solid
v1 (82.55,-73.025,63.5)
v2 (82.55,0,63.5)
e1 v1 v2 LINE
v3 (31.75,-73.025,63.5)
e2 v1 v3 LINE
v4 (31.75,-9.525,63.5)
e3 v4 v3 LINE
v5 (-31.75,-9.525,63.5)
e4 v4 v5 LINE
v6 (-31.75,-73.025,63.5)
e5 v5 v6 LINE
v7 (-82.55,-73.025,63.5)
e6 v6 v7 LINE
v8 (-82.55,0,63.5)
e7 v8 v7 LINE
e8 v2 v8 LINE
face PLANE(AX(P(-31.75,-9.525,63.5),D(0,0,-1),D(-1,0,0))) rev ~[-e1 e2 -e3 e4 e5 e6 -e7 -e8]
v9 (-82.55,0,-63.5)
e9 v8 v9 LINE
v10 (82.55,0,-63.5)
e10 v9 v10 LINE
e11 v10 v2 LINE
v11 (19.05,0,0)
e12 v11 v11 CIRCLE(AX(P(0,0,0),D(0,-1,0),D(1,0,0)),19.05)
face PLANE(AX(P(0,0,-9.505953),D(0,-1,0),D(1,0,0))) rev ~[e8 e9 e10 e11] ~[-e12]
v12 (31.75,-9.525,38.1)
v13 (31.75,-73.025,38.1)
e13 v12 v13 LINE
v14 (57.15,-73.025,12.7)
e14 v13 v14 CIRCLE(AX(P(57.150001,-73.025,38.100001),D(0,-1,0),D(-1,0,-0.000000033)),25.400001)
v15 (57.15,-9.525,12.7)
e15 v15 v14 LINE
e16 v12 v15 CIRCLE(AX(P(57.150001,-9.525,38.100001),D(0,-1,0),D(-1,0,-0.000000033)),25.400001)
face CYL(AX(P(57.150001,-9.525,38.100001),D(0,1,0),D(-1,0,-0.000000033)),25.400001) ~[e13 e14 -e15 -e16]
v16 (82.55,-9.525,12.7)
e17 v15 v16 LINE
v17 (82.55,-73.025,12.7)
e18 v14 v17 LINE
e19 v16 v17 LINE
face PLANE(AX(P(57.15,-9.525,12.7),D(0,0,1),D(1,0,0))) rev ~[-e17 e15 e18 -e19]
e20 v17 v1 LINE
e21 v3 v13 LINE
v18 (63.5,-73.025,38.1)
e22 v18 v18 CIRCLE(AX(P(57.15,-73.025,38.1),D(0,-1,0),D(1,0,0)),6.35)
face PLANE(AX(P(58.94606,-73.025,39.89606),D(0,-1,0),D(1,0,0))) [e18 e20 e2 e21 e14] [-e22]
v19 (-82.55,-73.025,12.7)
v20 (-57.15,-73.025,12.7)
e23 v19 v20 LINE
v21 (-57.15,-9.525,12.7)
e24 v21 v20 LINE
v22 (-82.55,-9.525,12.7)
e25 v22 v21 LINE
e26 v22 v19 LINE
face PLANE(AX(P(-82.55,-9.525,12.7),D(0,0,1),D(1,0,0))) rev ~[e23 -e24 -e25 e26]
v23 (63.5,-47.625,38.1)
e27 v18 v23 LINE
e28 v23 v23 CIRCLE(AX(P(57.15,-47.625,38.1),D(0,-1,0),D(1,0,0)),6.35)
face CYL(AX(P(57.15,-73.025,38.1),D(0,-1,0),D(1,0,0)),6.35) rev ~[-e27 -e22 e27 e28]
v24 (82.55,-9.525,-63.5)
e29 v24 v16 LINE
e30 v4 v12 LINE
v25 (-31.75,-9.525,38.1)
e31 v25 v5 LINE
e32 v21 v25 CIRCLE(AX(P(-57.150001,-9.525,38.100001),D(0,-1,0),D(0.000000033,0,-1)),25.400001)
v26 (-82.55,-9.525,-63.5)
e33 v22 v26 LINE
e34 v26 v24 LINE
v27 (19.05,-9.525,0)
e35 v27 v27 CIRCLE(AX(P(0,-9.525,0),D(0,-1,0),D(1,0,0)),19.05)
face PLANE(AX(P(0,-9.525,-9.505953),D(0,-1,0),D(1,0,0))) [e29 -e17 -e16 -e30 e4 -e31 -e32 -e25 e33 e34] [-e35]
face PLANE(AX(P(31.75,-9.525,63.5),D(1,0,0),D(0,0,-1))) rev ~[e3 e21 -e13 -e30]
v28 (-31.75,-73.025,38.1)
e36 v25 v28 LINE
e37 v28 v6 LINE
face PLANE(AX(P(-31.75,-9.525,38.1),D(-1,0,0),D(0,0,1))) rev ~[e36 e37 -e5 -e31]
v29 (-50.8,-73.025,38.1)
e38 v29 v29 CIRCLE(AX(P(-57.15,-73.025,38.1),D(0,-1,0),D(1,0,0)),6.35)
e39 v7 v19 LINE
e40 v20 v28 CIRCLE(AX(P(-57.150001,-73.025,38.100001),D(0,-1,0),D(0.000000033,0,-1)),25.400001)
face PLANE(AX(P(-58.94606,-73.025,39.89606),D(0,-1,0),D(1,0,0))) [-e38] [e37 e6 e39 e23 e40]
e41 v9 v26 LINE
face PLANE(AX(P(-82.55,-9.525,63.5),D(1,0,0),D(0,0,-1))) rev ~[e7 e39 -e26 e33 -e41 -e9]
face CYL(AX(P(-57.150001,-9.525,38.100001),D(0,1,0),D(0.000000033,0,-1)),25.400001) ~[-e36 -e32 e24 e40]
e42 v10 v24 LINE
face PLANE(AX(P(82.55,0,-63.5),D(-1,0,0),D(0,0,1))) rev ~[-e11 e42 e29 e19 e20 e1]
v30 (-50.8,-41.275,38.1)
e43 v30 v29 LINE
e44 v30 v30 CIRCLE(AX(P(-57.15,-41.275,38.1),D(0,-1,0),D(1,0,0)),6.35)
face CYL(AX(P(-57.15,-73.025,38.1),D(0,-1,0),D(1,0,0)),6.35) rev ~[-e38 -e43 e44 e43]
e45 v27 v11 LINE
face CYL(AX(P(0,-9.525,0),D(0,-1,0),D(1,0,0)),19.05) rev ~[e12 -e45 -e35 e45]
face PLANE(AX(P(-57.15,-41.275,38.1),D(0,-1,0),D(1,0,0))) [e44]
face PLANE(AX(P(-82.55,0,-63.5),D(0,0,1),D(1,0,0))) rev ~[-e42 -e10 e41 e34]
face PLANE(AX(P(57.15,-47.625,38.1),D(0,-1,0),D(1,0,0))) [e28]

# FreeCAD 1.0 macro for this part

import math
import FreeCAD as App
import Part
import Sketcher

V = App.Vector
Q = App.Units.Quantity

doc = App.newDocument("Part")
params = doc.addObject("Spreadsheet::Sheet", "Params")
for row, (alias, value) in enumerate([
    ("sketch1_height", "5 in"),
    ("sketch1_width", "6.5 in"),
    ("pad1_length", "0.375 in"),
    ("sketch2_radius", "1 in"),
    ("sketch2_width", "2 in"),
    ("pad2_length", "2.5 in"),
    ("sketch3_diameter", "1.5 in"),
    ("sketch4_diameter", "0.5 in"),
    ("pocket2_length", "1.25 in"),
    ("sketch5_diameter", "0.5 in"),
    ("pocket3_length", "1 in"),
    ("sketch6_diameter", "0.5 in"),
    ("pocket4_length", "1 in"),
], start=1):
    params.set(f"A{row}", alias)
    params.set(f"B{row}", "=" + value)
    params.setAlias(f"B{row}", alias)

body = doc.addObject("PartDesign::Body", "Body")

# Sketch on XZ plane
sketch1 = doc.addObject("Sketcher::SketchObject", "Sketch")
body.addObject(sketch1)
sketch1.AttachmentSupport = (doc.XZ_Plane, [""])
sketch1.MapMode = "FlatFace"
sketch1.addGeometry([
    Part.LineSegment(V(-82.55, -63.5, 0), V(82.55, -63.5, 0)),
    Part.LineSegment(V(82.55, -63.5, 0), V(82.55, 63.5, 0)),
    Part.LineSegment(V(82.55, 63.5, 0), V(-82.55, 63.5, 0)),
    Part.LineSegment(V(-82.55, 63.5, 0), V(-82.55, -63.5, 0)),
], False)
sketch1.addConstraint([
    Sketcher.Constraint("Coincident", 0, 2, 1, 1),
    Sketcher.Constraint("Coincident", 1, 2, 2, 1),
    Sketcher.Constraint("Coincident", 2, 2, 3, 1),
    Sketcher.Constraint("Coincident", 3, 2, 0, 1),
    Sketcher.Constraint("Horizontal", 0),
    Sketcher.Constraint("Vertical", 1),
    Sketcher.Constraint("Horizontal", 2),
    Sketcher.Constraint("Vertical", 3),
    Sketcher.Constraint("Symmetric", 0, 2, 2, 2, -1, 1),
    Sketcher.Constraint("DistanceY", 1, 1, 1, 2, Q("5 in")),
    Sketcher.Constraint("DistanceX", 0, 1, 0, 2, Q("6.5 in")),
])
sketch1.setExpression("Constraints[9]", "Params.sketch1_height")
sketch1.setExpression("Constraints[10]", "Params.sketch1_width")
pad1 = doc.addObject("PartDesign::Pad", "Pad")
body.addObject(pad1)
pad1.Profile = sketch1
pad1.setExpression("Length", "Params.pad1_length")

# Sketch on XZ plane
sketch2 = doc.addObject("Sketcher::SketchObject", "Sketch001")
body.addObject(sketch2)
sketch2.AttachmentSupport = (doc.XZ_Plane, [""])
sketch2.MapMode = "FlatFace"
sketch2.AttachmentOffset = App.Placement(V(0, 0, 0.375 * 25.4), App.Rotation())
sketch2.addGeometry([
    Part.LineSegment(V(-31.75, 63.5, 0), V(-82.55, 63.5, 0)),  # 0
    Part.LineSegment(V(-82.55, 63.5, 0), V(-82.55, 12.7, 0)),  # 1
    Part.LineSegment(V(-82.55, 12.7, 0), V(-57.15, 12.7, 0)),  # 2
    Part.ArcOfCircle(Part.Circle(V(-57.150001, 38.100001, 0), V(0, 0, 1), 25.400001), math.radians(-89.999998), math.radians(-0.000002)),  # 3
    Part.LineSegment(V(-31.75, 38.1, 0), V(-31.75, 63.5, 0)),  # 4
    Part.LineSegment(V(82.55, 12.7, 0), V(82.55, 63.5, 0)),  # 5
    Part.LineSegment(V(82.55, 63.5, 0), V(31.75, 63.5, 0)),  # 6
    Part.LineSegment(V(31.75, 63.5, 0), V(31.75, 38.1, 0)),  # 7
    Part.ArcOfCircle(Part.Circle(V(57.150001, 38.100001, 0), V(0, 0, 1), 25.400001), math.radians(-179.999998), math.radians(-90.000002)),  # 8
    Part.LineSegment(V(57.15, 12.7, 0), V(82.55, 12.7, 0)),  # 9
], False)
sketch2.addConstraint([
    Sketcher.Constraint("Coincident", 0, 2, 1, 1),
    Sketcher.Constraint("Coincident", 1, 2, 2, 1),
    Sketcher.Constraint("Tangent", 2, 2, 3, 1),
    Sketcher.Constraint("Tangent", 3, 2, 4, 1),
    Sketcher.Constraint("Coincident", 4, 2, 0, 1),
    Sketcher.Constraint("Coincident", 5, 2, 6, 1),
    Sketcher.Constraint("Coincident", 6, 2, 7, 1),
    Sketcher.Constraint("Tangent", 7, 2, 8, 1),
    Sketcher.Constraint("Tangent", 8, 2, 9, 1),
    Sketcher.Constraint("Coincident", 9, 2, 5, 1),
    Sketcher.Constraint("Horizontal", 0),
    Sketcher.Constraint("Vertical", 1),
    Sketcher.Constraint("Horizontal", 2),
    Sketcher.Constraint("Vertical", 4),
    Sketcher.Constraint("Vertical", 5),
    Sketcher.Constraint("Horizontal", 6),
    Sketcher.Constraint("Vertical", 7),
    Sketcher.Constraint("Horizontal", 9),
    Sketcher.Constraint("Equal", 3, 8),
    Sketcher.Constraint("Symmetric", 3, 3, 8, 3, -2),
    Sketcher.Constraint("Symmetric", 0, 2, 5, 2, -2),
    Sketcher.Constraint("Equal", 6, 1),
    Sketcher.Constraint("Radius", 3, Q("1 in")),
    Sketcher.Constraint("DistanceX", 0, 2, 0, 1, Q("2 in")),
    Sketcher.Constraint("DistanceY", -1, 1, 3, 3, Q("1.5 in")),
    Sketcher.Constraint("DistanceX", 3, 3, 8, 3, Q("4.5000001 in")),
])
sketch2.setExpression("Constraints[22]", "Params.sketch2_radius")
sketch2.setExpression("Constraints[23]", "Params.sketch2_width")
pad2 = doc.addObject("PartDesign::Pad", "Pad001")
body.addObject(pad2)
pad2.Profile = sketch2
pad2.setExpression("Length", "Params.pad2_length")

# Sketch on XZ plane
sketch3 = doc.addObject("Sketcher::SketchObject", "Sketch002")
body.addObject(sketch3)
sketch3.AttachmentSupport = (doc.XZ_Plane, [""])
sketch3.MapMode = "FlatFace"
sketch3.AttachmentOffset = App.Placement(V(0, 0, 0.375 * 25.4), App.Rotation())
sketch3.addGeometry(Part.Circle(V(0, 0, 0), V(0, 0, 1), 19.05), False)
sketch3.addConstraint([
    Sketcher.Constraint("Coincident", 0, 3, -1, 1),
    Sketcher.Constraint("Diameter", 0, Q("1.5 in")),
])
sketch3.setExpression("Constraints[1]", "Params.sketch3_diameter")
pocket1 = doc.addObject("PartDesign::Pocket", "Pocket")
body.addObject(pocket1)
pocket1.Profile = sketch3
pocket1.Type = "ThroughAll"

# Sketch on XZ plane
sketch4 = doc.addObject("Sketcher::SketchObject", "Sketch003")
body.addObject(sketch4)
sketch4.AttachmentSupport = (doc.XZ_Plane, [""])
sketch4.MapMode = "FlatFace"
sketch4.AttachmentOffset = App.Placement(V(0, 0, 2.875 * 25.4), App.Rotation())
sketch4.addGeometry(Part.Circle(V(-57.15, 38.1, 0), V(0, 0, 1), 6.35), False)
sketch4.addConstraint([
    Sketcher.Constraint("Diameter", 0, Q("0.5 in")),
    Sketcher.Constraint("DistanceY", -1, 1, 0, 3, Q("1.5 in")),
    Sketcher.Constraint("DistanceX", 0, 3, -1, 1, Q("2.25 in")),
])
sketch4.setExpression("Constraints[0]", "Params.sketch4_diameter")
pocket2 = doc.addObject("PartDesign::Pocket", "Pocket001")
body.addObject(pocket2)
pocket2.Profile = sketch4
pocket2.setExpression("Length", "Params.pocket2_length")

# Sketch on XZ plane
sketch5 = doc.addObject("Sketcher::SketchObject", "Sketch004")
body.addObject(sketch5)
sketch5.AttachmentSupport = (doc.XZ_Plane, [""])
sketch5.MapMode = "FlatFace"
sketch5.AttachmentOffset = App.Placement(V(0, 0, 2.875 * 25.4), App.Rotation())
sketch5.addGeometry(Part.Circle(V(-57.15, 38.1, 0), V(0, 0, 1), 6.35), False)
sketch5.addConstraint([
    Sketcher.Constraint("Diameter", 0, Q("0.5 in")),
    Sketcher.Constraint("DistanceY", -1, 1, 0, 3, Q("1.5 in")),
    Sketcher.Constraint("DistanceX", 0, 3, -1, 1, Q("2.25 in")),
])
sketch5.setExpression("Constraints[0]", "Params.sketch5_diameter")
pocket3 = doc.addObject("PartDesign::Pocket", "Pocket002")
body.addObject(pocket3)
pocket3.Profile = sketch5
pocket3.setExpression("Length", "Params.pocket3_length")

# Sketch on XZ plane
sketch6 = doc.addObject("Sketcher::SketchObject", "Sketch005")
body.addObject(sketch6)
sketch6.AttachmentSupport = (doc.XZ_Plane, [""])
sketch6.MapMode = "FlatFace"
sketch6.AttachmentOffset = App.Placement(V(0, 0, 2.875 * 25.4), App.Rotation())
sketch6.addGeometry(Part.Circle(V(57.15, 38.1, 0), V(0, 0, 1), 6.35), False)
sketch6.addConstraint([
    Sketcher.Constraint("Diameter", 0, Q("0.5 in")),
    Sketcher.Constraint("DistanceY", -1, 1, 0, 3, Q("1.5 in")),
    Sketcher.Constraint("DistanceX", -1, 1, 0, 3, Q("2.25 in")),
])
sketch6.setExpression("Constraints[0]", "Params.sketch6_diameter")
pocket4 = doc.addObject("PartDesign::Pocket", "Pocket003")
body.addObject(pocket4)
pocket4.Profile = sketch6
pocket4.setExpression("Length", "Params.pocket4_length")

doc.recompute()
